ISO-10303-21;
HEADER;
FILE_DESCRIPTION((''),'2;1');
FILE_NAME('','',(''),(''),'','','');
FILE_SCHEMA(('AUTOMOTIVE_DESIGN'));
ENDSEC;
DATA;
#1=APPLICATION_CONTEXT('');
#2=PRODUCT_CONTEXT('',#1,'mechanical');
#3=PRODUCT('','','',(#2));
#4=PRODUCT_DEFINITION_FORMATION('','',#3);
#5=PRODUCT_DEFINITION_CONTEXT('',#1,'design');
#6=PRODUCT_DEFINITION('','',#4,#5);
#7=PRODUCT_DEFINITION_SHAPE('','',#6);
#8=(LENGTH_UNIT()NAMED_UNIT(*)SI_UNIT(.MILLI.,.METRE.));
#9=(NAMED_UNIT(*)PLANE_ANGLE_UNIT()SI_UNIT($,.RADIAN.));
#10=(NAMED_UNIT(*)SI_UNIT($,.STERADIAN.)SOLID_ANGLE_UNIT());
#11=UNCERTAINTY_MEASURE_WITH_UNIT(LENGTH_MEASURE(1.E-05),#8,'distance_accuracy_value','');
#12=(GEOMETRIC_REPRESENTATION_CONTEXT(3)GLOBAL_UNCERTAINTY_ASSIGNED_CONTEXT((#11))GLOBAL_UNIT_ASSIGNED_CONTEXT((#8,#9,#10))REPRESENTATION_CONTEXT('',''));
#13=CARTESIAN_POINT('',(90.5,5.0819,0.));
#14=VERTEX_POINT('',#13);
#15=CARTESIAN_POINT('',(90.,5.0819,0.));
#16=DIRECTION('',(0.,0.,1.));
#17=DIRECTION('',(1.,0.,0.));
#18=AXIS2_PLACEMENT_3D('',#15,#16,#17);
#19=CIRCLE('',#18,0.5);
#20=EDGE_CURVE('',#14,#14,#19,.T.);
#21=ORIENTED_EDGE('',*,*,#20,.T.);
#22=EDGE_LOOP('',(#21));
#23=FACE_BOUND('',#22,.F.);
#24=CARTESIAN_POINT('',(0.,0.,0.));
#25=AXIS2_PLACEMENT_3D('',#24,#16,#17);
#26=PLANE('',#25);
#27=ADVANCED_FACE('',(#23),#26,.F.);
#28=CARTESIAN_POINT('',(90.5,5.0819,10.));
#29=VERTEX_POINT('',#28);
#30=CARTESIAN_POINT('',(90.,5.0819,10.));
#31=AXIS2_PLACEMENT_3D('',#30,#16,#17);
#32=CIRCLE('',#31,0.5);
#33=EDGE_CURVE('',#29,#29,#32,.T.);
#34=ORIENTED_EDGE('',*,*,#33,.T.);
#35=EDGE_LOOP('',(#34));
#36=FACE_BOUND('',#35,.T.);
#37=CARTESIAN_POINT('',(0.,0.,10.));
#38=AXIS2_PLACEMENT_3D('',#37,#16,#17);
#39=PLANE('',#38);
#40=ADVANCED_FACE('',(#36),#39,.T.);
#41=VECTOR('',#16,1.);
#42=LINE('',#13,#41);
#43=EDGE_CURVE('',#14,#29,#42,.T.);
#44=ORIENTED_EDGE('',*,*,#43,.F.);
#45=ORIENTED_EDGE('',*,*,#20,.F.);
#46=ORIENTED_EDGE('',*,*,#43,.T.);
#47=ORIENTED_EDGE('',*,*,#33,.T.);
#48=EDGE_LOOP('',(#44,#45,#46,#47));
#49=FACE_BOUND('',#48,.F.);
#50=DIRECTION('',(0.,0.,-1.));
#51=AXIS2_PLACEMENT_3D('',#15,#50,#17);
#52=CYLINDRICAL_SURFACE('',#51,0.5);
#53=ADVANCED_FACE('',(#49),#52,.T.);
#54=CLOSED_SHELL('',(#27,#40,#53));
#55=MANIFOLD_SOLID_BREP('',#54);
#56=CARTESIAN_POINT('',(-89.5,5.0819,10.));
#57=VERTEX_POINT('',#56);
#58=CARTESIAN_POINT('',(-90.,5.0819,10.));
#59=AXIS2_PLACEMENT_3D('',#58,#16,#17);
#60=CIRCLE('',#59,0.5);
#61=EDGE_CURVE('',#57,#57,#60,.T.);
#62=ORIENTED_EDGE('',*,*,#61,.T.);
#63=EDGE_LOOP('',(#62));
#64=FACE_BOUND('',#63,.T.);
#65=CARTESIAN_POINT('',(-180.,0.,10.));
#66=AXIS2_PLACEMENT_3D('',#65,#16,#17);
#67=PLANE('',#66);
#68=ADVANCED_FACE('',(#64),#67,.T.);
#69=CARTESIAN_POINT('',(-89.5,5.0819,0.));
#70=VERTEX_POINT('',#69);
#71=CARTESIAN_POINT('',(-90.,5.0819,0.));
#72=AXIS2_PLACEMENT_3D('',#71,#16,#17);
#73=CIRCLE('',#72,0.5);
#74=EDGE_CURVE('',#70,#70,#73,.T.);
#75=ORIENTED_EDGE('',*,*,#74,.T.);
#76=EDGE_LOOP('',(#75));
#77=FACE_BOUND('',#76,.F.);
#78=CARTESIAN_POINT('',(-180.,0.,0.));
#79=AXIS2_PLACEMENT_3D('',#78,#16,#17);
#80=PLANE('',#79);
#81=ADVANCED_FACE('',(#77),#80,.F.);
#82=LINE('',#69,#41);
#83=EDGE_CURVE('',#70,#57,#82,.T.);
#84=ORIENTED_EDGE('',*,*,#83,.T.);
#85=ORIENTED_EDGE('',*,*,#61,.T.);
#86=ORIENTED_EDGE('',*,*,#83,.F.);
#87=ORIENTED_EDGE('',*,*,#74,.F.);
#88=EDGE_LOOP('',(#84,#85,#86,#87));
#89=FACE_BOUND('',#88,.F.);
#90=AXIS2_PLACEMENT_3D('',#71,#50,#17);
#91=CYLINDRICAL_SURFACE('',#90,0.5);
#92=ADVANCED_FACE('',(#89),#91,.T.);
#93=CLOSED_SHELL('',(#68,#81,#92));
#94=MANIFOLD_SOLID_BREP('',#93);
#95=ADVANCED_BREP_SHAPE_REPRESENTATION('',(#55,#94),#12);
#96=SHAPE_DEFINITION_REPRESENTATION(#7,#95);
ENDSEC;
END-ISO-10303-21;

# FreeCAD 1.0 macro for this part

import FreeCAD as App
import Part
import Sketcher

V = App.Vector
Q = App.Units.Quantity

doc = App.newDocument("Part")
body = doc.addObject("PartDesign::Body", "Body")
body.AllowCompound = True

# Sketch on XY plane
sketch1 = body.newObject("Sketcher::SketchObject", "Sketch")
sketch1.AttachmentSupport = (doc.getObject("XY_Plane"), [""])
sketch1.MapMode = "FlatFace"
sketch1.addGeometry(Part.Circle(V(90, 5.1, 0), V(0, 0, 1), 0.5), False)
sketch1.addConstraint([
    Sketcher.Constraint("Diameter", 0, Q("1 mm")),
    Sketcher.Constraint("DistanceX", -1, 1, 0, 3, Q("90 mm")),
    Sketcher.Constraint("DistanceY", -1, 1, 0, 3, Q("5.082 mm")),
])
pad1 = body.newObject("PartDesign::Pad", "Pad")
pad1.Profile = sketch1
pad1.Length = 10
doc.recompute()

linearpattern = body.newObject("PartDesign::LinearPattern", "LinearPattern")
linearpattern.Originals = [pad1]
linearpattern.Direction = (doc.getObject("X_Axis"), [""])
linearpattern.Mode = "offset"
linearpattern.Offset = 180
linearpattern.Occurrences = 2
linearpattern.Reversed = True
body.Tip = linearpattern

doc.recompute()
